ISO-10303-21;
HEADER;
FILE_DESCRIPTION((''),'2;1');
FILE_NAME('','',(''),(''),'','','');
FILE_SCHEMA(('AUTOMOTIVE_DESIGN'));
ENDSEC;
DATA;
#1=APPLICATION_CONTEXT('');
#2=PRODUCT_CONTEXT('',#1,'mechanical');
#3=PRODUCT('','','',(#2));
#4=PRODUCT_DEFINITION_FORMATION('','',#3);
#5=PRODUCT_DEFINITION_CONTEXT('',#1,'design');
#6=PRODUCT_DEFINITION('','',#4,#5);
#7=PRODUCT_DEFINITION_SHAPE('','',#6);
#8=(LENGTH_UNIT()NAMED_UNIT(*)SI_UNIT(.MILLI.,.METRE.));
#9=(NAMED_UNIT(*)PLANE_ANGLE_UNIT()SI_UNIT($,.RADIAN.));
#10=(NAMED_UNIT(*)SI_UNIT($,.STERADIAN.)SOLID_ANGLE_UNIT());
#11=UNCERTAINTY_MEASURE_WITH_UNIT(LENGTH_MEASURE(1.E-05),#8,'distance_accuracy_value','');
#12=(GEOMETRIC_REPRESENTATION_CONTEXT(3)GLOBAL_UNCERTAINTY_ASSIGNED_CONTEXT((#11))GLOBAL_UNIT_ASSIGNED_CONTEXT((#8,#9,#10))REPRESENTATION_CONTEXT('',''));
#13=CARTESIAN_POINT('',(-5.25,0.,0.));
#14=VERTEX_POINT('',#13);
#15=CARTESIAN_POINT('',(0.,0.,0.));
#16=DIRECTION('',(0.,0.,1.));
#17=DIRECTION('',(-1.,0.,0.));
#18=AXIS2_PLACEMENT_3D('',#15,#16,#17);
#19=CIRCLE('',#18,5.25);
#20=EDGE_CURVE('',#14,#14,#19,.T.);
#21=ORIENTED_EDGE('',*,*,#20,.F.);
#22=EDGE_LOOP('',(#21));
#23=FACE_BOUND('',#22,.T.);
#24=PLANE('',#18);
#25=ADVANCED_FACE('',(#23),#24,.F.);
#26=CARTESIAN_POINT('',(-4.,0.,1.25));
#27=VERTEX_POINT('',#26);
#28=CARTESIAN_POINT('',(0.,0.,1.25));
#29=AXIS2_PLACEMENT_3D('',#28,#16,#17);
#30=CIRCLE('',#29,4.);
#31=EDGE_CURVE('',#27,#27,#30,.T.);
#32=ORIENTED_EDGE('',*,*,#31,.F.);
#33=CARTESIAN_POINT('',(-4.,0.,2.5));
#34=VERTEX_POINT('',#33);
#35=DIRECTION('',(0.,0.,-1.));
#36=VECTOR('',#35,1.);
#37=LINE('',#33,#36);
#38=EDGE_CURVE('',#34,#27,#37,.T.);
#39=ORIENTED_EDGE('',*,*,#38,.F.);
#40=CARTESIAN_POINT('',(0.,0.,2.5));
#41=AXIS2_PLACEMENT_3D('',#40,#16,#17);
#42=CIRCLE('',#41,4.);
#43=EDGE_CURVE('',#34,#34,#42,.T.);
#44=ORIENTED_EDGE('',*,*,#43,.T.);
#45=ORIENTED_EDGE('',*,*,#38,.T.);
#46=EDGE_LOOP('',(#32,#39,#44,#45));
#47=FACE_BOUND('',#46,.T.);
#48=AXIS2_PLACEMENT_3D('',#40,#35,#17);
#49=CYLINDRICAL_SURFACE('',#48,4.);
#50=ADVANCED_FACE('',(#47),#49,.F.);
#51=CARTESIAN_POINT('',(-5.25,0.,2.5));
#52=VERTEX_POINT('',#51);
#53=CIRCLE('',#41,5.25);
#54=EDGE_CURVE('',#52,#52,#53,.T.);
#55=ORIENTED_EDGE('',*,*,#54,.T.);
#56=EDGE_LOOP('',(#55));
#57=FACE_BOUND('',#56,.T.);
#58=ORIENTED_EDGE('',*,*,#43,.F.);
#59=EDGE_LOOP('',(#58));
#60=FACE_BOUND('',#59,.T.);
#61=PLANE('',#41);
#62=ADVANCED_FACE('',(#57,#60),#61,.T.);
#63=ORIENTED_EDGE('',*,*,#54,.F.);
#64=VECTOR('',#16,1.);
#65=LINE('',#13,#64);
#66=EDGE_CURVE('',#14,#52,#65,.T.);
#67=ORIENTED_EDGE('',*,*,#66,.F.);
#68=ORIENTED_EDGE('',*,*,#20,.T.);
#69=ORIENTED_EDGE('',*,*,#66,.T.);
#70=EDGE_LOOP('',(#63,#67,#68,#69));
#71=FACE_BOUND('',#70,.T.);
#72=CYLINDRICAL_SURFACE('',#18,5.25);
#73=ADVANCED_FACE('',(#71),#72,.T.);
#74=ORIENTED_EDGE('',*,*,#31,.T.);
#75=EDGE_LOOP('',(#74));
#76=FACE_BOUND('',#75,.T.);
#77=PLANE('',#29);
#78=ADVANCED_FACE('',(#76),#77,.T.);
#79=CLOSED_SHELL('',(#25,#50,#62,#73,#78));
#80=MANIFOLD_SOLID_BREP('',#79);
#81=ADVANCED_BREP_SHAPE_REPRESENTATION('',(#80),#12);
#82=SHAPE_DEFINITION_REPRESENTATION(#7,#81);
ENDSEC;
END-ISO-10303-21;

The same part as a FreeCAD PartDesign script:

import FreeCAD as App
import Part
import Sketcher
Q = App.Units.Quantity


def add_polygon(sketch, points):
    """Adds a closed chain of lines whose ends are joined by coincident constraints."""
    first, n = sketch.GeometryCount, len(points)
    for a, b in zip(points, points[1:] + points[:1]):
        sketch.addGeometry(Part.LineSegment(App.Vector(*a, 0), App.Vector(*b, 0)), False)
    for i in range(n):
        sketch.addConstraint(Sketcher.Constraint("Coincident", first + i, 2, first + (i + 1) % n, 1))

doc = App.newDocument("Part")
body = doc.addObject("PartDesign::Body", "Body")

sketch1 = body.newObject("Sketcher::SketchObject", "Sketch")
sketch1.AttachmentSupport = (doc.getObject("XZ_Plane"), [""])
sketch1.MapMode = "FlatFace"
add_polygon(sketch1, [(-5.25, 0), (0, 0), (0, 1.25), (-4, 1.25), (-4, 2.5), (-5.25, 2.5)])
sketch1.addConstraint([
    Sketcher.Constraint("Horizontal", 0),
    Sketcher.Constraint("Vertical", 1),
    Sketcher.Constraint("Horizontal", 2),
    Sketcher.Constraint("Vertical", 3),
    Sketcher.Constraint("Horizontal", 4),
    Sketcher.Constraint("Vertical", 5),
    Sketcher.Constraint("Coincident", 0, 2, -1, 1),
    Sketcher.Constraint("Equal", 4, 1),
    Sketcher.Constraint("Equal", 1, 3),
    Sketcher.Constraint("DistanceX", 2, 2, 2, 1, Q("4 mm")),
    Sketcher.Constraint("DistanceY", 5, 2, 5, 1, Q("2.5 mm")),
])
revolution = body.newObject("PartDesign::Revolution", "Revolution")
revolution.Profile = sketch1
revolution.ReferenceAxis = (sketch1, ["V_Axis"])
revolution.Angle = 360

doc.recompute()
